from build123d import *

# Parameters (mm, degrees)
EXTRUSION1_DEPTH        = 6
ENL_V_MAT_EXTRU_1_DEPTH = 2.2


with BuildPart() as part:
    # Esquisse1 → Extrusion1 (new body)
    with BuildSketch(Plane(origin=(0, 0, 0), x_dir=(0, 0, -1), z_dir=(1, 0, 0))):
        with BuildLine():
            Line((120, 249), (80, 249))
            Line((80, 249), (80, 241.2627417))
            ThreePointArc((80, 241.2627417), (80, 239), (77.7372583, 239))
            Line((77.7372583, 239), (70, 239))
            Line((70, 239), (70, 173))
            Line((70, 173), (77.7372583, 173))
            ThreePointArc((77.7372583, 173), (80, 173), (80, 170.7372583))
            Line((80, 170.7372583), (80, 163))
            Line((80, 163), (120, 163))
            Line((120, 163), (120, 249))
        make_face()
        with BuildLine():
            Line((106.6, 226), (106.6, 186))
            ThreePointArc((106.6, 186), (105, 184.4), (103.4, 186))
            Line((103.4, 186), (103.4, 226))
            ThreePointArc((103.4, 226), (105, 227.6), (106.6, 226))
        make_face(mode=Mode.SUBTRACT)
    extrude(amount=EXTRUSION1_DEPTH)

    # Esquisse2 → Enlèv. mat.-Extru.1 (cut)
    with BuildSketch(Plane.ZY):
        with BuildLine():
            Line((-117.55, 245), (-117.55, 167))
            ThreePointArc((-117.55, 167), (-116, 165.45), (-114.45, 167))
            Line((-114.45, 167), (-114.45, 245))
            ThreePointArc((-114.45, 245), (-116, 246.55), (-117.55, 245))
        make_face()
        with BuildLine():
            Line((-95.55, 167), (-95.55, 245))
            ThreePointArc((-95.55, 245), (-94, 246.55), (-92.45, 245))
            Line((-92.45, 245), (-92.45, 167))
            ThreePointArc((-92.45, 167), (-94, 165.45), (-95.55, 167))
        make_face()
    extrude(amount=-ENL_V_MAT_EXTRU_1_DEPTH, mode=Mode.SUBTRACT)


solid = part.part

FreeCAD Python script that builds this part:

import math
import FreeCAD as App
import Part
import Sketcher

V = App.Vector
Q = App.Units.Quantity

doc = App.newDocument("Part")
body = doc.addObject("PartDesign::Body", "Body")

# Sketch on YZ plane
sketch1 = body.newObject("Sketcher::SketchObject", "Sketch")
sketch1.AttachmentSupport = (doc.getObject("YZ_Plane"), [""])
sketch1.MapMode = "FlatFace"
sketch1.addGeometry([
    Part.LineSegment(V(249, -120, 0), V(249, -80, 0)),  # 0
    Part.LineSegment(V(249, -80, 0), V(241.3, -80, 0)),  # 1
    Part.ArcOfCircle(Part.Circle(V(240.1, -78.9, 0), V(0, 0, 1), 1.6), math.radians(135), math.radians(315)),  # 2
    Part.LineSegment(V(239, -77.7, 0), V(239, -70, 0)),  # 3
    Part.LineSegment(V(239, -70, 0), V(173, -70, 0)),  # 4
    Part.LineSegment(V(173, -70, 0), V(173, -77.7, 0)),  # 5
    Part.ArcOfCircle(Part.Circle(V(171.9, -78.9, 0), V(0, 0, 1), 1.6), math.radians(-135), math.radians(45)),  # 6
    Part.LineSegment(V(170.7, -80, 0), V(163, -80, 0)),  # 7
    Part.LineSegment(V(163, -80, 0), V(163, -120, 0)),  # 8
    Part.LineSegment(V(163, -120, 0), V(249, -120, 0)),  # 9
    Part.ArcOfCircle(Part.Circle(V(226, -105, 0), V(0, 0, 1), 1.6), math.radians(-90), math.radians(90)),  # 10
    Part.LineSegment(V(226, -106.6, 0), V(186, -106.6, 0)),  # 11
    Part.ArcOfCircle(Part.Circle(V(186, -105, 0), V(0, 0, 1), 1.6), math.radians(90), math.radians(270)),  # 12
    Part.LineSegment(V(186, -103.4, 0), V(226, -103.4, 0)),  # 13
], False)
sketch1.addConstraint([
    Sketcher.Constraint("Coincident", 0, 2, 1, 1),
    Sketcher.Constraint("Coincident", 1, 2, 2, 2),
    Sketcher.Constraint("Coincident", 2, 1, 3, 1),
    Sketcher.Constraint("Coincident", 3, 2, 4, 1),
    Sketcher.Constraint("Coincident", 4, 2, 5, 1),
    Sketcher.Constraint("Coincident", 5, 2, 6, 2),
    Sketcher.Constraint("Coincident", 6, 1, 7, 1),
    Sketcher.Constraint("Coincident", 7, 2, 8, 1),
    Sketcher.Constraint("Coincident", 8, 2, 9, 1),
    Sketcher.Constraint("Coincident", 9, 2, 0, 1),
    Sketcher.Constraint("Tangent", 10, 1, 11, 1),
    Sketcher.Constraint("Tangent", 11, 2, 12, 2),
    Sketcher.Constraint("Tangent", 12, 1, 13, 1),
    Sketcher.Constraint("Tangent", 13, 2, 10, 2),
    Sketcher.Constraint("Vertical", 0),
    Sketcher.Constraint("Horizontal", 1),
    Sketcher.Constraint("Vertical", 3),
    Sketcher.Constraint("Horizontal", 4),
    Sketcher.Constraint("Vertical", 5),
    Sketcher.Constraint("Horizontal", 7),
    Sketcher.Constraint("Vertical", 8),
    Sketcher.Constraint("Horizontal", 9),
    Sketcher.Constraint("Horizontal", 11),
    Sketcher.Constraint("Horizontal", 13),
    Sketcher.Constraint("Equal", 2, 6),
    Sketcher.Constraint("Equal", 6, 10),
    Sketcher.Constraint("Horizontal", 2, 3, 6, 3),
    Sketcher.Constraint("Horizontal", 2, 1, 5, 2),
    Sketcher.Constraint("Horizontal", 1, 2, 6, 1),
    Sketcher.Constraint("Equal", 1, 7),
    Sketcher.Constraint("Equal", 13, 0),
    Sketcher.Constraint("Equal", 7, 3),
    Sketcher.Constraint("Radius", 2, Q("1.6 mm")),
    Sketcher.Constraint("DistanceX", 4, 2, 4, 1, Q("66 mm")),
    Sketcher.Constraint("DistanceX", 9, 1, 9, 2, Q("86 mm")),
    Sketcher.Constraint("DistanceX", 11, 2, 11, 1, Q("40 mm")),
    Sketcher.Constraint("DistanceX", -1, 1, 10, 3, Q("226 mm")),
    Sketcher.Constraint("DistanceY", 10, 3, -1, 1, Q("105 mm")),
    Sketcher.Constraint("DistanceX", -1, 1, 0, 2, Q("249 mm")),
    Sketcher.Constraint("DistanceY", 0, 2, -1, 1, Q("80 mm")),
    Sketcher.Constraint("DistanceY", 3, 2, -1, 1, Q("70 mm")),
    Sketcher.Constraint("DistanceX", -1, 1, 2, 3, Q("240.131371 mm")),
])
pad1 = body.newObject("PartDesign::Pad", "Pad")
pad1.Profile = sketch1
pad1.Length = 6

# Sketch on YZ plane
sketch2 = body.newObject("Sketcher::SketchObject", "Sketch001")
sketch2.AttachmentSupport = (doc.getObject("YZ_Plane"), [""])
sketch2.MapMode = "FlatFace"
sketch2.addGeometry([
    Part.LineSegment(V(245, -117.5, 0), V(167, -117.5, 0)),  # 0
    Part.ArcOfCircle(Part.Circle(V(167, -116, 0), V(0, 0, 1), 1.6), math.radians(90), math.radians(270)),  # 1
    Part.LineSegment(V(167, -114.5, 0), V(245, -114.5, 0)),  # 2
    Part.ArcOfCircle(Part.Circle(V(245, -116, 0), V(0, 0, 1), 1.6), math.radians(-90), math.radians(90)),  # 3
    Part.LineSegment(V(245, -95.5, 0), V(167, -95.5, 0)),  # 4
    Part.ArcOfCircle(Part.Circle(V(167, -94, 0), V(0, 0, 1), 1.6), math.radians(90), math.radians(270)),  # 5
    Part.LineSegment(V(167, -92.5, 0), V(245, -92.5, 0)),  # 6
    Part.ArcOfCircle(Part.Circle(V(245, -94, 0), V(0, 0, 1), 1.6), math.radians(-90), math.radians(90)),  # 7
], False)
sketch2.addConstraint([
    Sketcher.Constraint("Tangent", 0, 2, 1, 2),
    Sketcher.Constraint("Tangent", 1, 1, 2, 1),
    Sketcher.Constraint("Tangent", 2, 2, 3, 2),
    Sketcher.Constraint("Tangent", 3, 1, 0, 1),
    Sketcher.Constraint("Tangent", 4, 2, 5, 2),
    Sketcher.Constraint("Tangent", 5, 1, 6, 1),
    Sketcher.Constraint("Tangent", 6, 2, 7, 2),
    Sketcher.Constraint("Tangent", 7, 1, 4, 1),
    Sketcher.Constraint("Horizontal", 0),
    Sketcher.Constraint("Horizontal", 2),
    Sketcher.Constraint("Horizontal", 4),
    Sketcher.Constraint("Horizontal", 6),
    Sketcher.Constraint("Equal", 3, 5),
    Sketcher.Constraint("Vertical", 1, 3, 5, 3),
    Sketcher.Constraint("Vertical", 3, 3, 7, 3),
    Sketcher.Constraint("DistanceX", 0, 2, 0, 1, Q("78 mm")),
    Sketcher.Constraint("Radius", 1, Q("1.55 mm")),
    Sketcher.Constraint("DistanceX", -1, 1, 1, 3, Q("167 mm")),
    Sketcher.Constraint("DistanceY", 1, 3, -1, 1, Q("116 mm")),
    Sketcher.Constraint("DistanceY", 5, 3, -1, 1, Q("94 mm")),
])
pocket1 = body.newObject("PartDesign::Pocket", "Pocket")
pocket1.Profile = sketch2
pocket1.Length = 2.2
pocket1.Reversed = True

doc.recompute()
